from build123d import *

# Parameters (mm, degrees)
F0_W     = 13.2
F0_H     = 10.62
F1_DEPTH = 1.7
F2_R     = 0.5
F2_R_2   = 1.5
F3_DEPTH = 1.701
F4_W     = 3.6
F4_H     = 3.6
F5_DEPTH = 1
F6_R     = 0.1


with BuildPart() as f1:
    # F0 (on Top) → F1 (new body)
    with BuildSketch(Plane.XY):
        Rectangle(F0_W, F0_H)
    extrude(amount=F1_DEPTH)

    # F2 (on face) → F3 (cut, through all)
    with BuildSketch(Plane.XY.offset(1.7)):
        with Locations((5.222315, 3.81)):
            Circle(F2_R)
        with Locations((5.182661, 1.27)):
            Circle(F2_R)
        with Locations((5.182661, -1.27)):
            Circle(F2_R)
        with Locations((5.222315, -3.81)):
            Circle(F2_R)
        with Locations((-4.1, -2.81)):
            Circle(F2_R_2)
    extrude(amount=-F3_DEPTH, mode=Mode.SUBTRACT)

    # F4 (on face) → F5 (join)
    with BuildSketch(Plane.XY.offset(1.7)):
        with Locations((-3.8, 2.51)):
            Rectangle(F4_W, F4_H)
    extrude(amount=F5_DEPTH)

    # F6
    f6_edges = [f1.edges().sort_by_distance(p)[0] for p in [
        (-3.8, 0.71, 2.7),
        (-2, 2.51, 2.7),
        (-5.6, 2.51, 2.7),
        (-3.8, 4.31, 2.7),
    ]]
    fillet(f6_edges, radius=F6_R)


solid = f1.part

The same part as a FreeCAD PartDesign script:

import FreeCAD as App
import Part
import Sketcher
from FreeCAD import Vector


def edges_at(feature, points):
    """Names of the edges that pass closest to the given points."""
    edges = feature.Shape.Edges
    near = lambda p: min(range(len(edges)), key=lambda i: edges[i].distToShape(Part.Vertex(*p))[0])
    return sorted({f"Edge{near(p) + 1}" for p in points})


def add_polygon(sketch, points):
    """Adds a closed chain of lines whose ends are joined by coincident constraints."""
    first, n = sketch.GeometryCount, len(points)
    for a, b in zip(points, points[1:] + points[:1]):
        sketch.addGeometry(Part.LineSegment(App.Vector(*a, 0), App.Vector(*b, 0)), False)
    for i in range(n):
        sketch.addConstraint(Sketcher.Constraint("Coincident", first + i, 2, first + (i + 1) % n, 1))

doc = App.newDocument("Part")
body = doc.addObject("PartDesign::Body", "Body")

sketch1 = body.newObject("Sketcher::SketchObject", "Sketch")
sketch1.AttachmentSupport = (doc.getObject("XY_Plane"), [""])
sketch1.MapMode = "FlatFace"
add_polygon(sketch1, [(-7, 5), (-7, -5), (7, -5), (7, 5)])
sketch1.addConstraint([
    Sketcher.Constraint("Vertical", 0),
    Sketcher.Constraint("Horizontal", 1),
    Sketcher.Constraint("Vertical", 2),
    Sketcher.Constraint("Horizontal", 3),
    Sketcher.Constraint("Symmetric", 0, 2, 2, 2, -1, 1),
    Sketcher.Constraint("DistanceX", 1, 1, 1, 2, 13.2),
    Sketcher.Constraint("DistanceY", 0, 2, 0, 1, 10.62),
])
pad1 = body.newObject("PartDesign::Pad", "Pad")
pad1.Profile = sketch1
pad1.Length = 1.7

sketch2 = body.newObject("Sketcher::SketchObject", "Sketch001")
sketch2.AttachmentSupport = (doc.getObject("XY_Plane"), [""])
sketch2.MapMode = "FlatFace"
sketch2.AttachmentOffset = App.Placement(Vector(0, 0, 1.7), App.Rotation())
sketch2.addGeometry([
    Part.Circle(Vector(5.2, 3.8, 0), Vector(0, 0, 1), 0.5),
    Part.Circle(Vector(5.2, 1.3, 0), Vector(0, 0, 1), 0.5),
    Part.Circle(Vector(5.2, -1.3, 0), Vector(0, 0, 1), 0.5),
    Part.Circle(Vector(5.2, -3.8, 0), Vector(0, 0, 1), 0.5),
    Part.Circle(Vector(-4.1, -2.8, 0), Vector(0, 0, 1), 1.5),
], False)
sketch2.addConstraint([
    Sketcher.Constraint("Equal", 0, 1),
    Sketcher.Constraint("Equal", 1, 2),
    Sketcher.Constraint("Equal", 2, 3),
    Sketcher.Constraint("Symmetric", 1, 3, 2, 3, -1),
    Sketcher.Constraint("Symmetric", 0, 3, 3, 3, -1),
    Sketcher.Constraint("Diameter", 0, 1.0),
    Sketcher.Constraint("Diameter", 4, 3.0),
    Sketcher.Constraint("DistanceY", 3, 3, 4, 3, 1.0),
    Sketcher.Constraint("DistanceX", 4, 3, -1, 1, 4.1),
    Sketcher.Constraint("DistanceY", -1, 1, 0, 3, 3.81),
    Sketcher.Constraint("DistanceY", -1, 1, 1, 3, 1.27),
    Sketcher.Constraint("DistanceX", -1, 1, 1, 3, 5.182661),
    Sketcher.Constraint("DistanceX", -1, 1, 0, 3, 5.222315),
])
pocket1 = body.newObject("PartDesign::Pocket", "Pocket")
pocket1.Profile = sketch2
pocket1.Type = "ThroughAll"

sketch3 = body.newObject("Sketcher::SketchObject", "Sketch002")
sketch3.AttachmentSupport = (doc.getObject("XY_Plane"), [""])
sketch3.MapMode = "FlatFace"
sketch3.AttachmentOffset = App.Placement(Vector(0, 0, 1.7), App.Rotation())
add_polygon(sketch3, [(-5.6, 4.3), (-5.6, 0.7), (-2, 0.7), (-2, 4.3)])
sketch3.addConstraint([
    Sketcher.Constraint("Vertical", 0),
    Sketcher.Constraint("Horizontal", 1),
    Sketcher.Constraint("Vertical", 2),
    Sketcher.Constraint("Horizontal", 3),
    Sketcher.Constraint("Equal", 3, 0),
    Sketcher.Constraint("DistanceX", 1, 1, 1, 2, 3.6),
    Sketcher.Constraint("DistanceX", 1, 2, -1, 1, 2.0),
    Sketcher.Constraint("DistanceY", -1, 1, 0, 2, 0.71),
])
pad2 = body.newObject("PartDesign::Pad", "Pad001")
pad2.Profile = sketch3
pad2.Length = 1
doc.recompute()

fillet = body.newObject("PartDesign::Fillet", "Fillet")
fillet.Base = (pad2, edges_at(pad2, [
    (-3.8, 0.71, 2.7),
    (-2, 2.51, 2.7),
    (-5.6, 2.51, 2.7),
    (-3.8, 4.31, 2.7),
]))
fillet.Radius = 0.1

doc.recompute()
